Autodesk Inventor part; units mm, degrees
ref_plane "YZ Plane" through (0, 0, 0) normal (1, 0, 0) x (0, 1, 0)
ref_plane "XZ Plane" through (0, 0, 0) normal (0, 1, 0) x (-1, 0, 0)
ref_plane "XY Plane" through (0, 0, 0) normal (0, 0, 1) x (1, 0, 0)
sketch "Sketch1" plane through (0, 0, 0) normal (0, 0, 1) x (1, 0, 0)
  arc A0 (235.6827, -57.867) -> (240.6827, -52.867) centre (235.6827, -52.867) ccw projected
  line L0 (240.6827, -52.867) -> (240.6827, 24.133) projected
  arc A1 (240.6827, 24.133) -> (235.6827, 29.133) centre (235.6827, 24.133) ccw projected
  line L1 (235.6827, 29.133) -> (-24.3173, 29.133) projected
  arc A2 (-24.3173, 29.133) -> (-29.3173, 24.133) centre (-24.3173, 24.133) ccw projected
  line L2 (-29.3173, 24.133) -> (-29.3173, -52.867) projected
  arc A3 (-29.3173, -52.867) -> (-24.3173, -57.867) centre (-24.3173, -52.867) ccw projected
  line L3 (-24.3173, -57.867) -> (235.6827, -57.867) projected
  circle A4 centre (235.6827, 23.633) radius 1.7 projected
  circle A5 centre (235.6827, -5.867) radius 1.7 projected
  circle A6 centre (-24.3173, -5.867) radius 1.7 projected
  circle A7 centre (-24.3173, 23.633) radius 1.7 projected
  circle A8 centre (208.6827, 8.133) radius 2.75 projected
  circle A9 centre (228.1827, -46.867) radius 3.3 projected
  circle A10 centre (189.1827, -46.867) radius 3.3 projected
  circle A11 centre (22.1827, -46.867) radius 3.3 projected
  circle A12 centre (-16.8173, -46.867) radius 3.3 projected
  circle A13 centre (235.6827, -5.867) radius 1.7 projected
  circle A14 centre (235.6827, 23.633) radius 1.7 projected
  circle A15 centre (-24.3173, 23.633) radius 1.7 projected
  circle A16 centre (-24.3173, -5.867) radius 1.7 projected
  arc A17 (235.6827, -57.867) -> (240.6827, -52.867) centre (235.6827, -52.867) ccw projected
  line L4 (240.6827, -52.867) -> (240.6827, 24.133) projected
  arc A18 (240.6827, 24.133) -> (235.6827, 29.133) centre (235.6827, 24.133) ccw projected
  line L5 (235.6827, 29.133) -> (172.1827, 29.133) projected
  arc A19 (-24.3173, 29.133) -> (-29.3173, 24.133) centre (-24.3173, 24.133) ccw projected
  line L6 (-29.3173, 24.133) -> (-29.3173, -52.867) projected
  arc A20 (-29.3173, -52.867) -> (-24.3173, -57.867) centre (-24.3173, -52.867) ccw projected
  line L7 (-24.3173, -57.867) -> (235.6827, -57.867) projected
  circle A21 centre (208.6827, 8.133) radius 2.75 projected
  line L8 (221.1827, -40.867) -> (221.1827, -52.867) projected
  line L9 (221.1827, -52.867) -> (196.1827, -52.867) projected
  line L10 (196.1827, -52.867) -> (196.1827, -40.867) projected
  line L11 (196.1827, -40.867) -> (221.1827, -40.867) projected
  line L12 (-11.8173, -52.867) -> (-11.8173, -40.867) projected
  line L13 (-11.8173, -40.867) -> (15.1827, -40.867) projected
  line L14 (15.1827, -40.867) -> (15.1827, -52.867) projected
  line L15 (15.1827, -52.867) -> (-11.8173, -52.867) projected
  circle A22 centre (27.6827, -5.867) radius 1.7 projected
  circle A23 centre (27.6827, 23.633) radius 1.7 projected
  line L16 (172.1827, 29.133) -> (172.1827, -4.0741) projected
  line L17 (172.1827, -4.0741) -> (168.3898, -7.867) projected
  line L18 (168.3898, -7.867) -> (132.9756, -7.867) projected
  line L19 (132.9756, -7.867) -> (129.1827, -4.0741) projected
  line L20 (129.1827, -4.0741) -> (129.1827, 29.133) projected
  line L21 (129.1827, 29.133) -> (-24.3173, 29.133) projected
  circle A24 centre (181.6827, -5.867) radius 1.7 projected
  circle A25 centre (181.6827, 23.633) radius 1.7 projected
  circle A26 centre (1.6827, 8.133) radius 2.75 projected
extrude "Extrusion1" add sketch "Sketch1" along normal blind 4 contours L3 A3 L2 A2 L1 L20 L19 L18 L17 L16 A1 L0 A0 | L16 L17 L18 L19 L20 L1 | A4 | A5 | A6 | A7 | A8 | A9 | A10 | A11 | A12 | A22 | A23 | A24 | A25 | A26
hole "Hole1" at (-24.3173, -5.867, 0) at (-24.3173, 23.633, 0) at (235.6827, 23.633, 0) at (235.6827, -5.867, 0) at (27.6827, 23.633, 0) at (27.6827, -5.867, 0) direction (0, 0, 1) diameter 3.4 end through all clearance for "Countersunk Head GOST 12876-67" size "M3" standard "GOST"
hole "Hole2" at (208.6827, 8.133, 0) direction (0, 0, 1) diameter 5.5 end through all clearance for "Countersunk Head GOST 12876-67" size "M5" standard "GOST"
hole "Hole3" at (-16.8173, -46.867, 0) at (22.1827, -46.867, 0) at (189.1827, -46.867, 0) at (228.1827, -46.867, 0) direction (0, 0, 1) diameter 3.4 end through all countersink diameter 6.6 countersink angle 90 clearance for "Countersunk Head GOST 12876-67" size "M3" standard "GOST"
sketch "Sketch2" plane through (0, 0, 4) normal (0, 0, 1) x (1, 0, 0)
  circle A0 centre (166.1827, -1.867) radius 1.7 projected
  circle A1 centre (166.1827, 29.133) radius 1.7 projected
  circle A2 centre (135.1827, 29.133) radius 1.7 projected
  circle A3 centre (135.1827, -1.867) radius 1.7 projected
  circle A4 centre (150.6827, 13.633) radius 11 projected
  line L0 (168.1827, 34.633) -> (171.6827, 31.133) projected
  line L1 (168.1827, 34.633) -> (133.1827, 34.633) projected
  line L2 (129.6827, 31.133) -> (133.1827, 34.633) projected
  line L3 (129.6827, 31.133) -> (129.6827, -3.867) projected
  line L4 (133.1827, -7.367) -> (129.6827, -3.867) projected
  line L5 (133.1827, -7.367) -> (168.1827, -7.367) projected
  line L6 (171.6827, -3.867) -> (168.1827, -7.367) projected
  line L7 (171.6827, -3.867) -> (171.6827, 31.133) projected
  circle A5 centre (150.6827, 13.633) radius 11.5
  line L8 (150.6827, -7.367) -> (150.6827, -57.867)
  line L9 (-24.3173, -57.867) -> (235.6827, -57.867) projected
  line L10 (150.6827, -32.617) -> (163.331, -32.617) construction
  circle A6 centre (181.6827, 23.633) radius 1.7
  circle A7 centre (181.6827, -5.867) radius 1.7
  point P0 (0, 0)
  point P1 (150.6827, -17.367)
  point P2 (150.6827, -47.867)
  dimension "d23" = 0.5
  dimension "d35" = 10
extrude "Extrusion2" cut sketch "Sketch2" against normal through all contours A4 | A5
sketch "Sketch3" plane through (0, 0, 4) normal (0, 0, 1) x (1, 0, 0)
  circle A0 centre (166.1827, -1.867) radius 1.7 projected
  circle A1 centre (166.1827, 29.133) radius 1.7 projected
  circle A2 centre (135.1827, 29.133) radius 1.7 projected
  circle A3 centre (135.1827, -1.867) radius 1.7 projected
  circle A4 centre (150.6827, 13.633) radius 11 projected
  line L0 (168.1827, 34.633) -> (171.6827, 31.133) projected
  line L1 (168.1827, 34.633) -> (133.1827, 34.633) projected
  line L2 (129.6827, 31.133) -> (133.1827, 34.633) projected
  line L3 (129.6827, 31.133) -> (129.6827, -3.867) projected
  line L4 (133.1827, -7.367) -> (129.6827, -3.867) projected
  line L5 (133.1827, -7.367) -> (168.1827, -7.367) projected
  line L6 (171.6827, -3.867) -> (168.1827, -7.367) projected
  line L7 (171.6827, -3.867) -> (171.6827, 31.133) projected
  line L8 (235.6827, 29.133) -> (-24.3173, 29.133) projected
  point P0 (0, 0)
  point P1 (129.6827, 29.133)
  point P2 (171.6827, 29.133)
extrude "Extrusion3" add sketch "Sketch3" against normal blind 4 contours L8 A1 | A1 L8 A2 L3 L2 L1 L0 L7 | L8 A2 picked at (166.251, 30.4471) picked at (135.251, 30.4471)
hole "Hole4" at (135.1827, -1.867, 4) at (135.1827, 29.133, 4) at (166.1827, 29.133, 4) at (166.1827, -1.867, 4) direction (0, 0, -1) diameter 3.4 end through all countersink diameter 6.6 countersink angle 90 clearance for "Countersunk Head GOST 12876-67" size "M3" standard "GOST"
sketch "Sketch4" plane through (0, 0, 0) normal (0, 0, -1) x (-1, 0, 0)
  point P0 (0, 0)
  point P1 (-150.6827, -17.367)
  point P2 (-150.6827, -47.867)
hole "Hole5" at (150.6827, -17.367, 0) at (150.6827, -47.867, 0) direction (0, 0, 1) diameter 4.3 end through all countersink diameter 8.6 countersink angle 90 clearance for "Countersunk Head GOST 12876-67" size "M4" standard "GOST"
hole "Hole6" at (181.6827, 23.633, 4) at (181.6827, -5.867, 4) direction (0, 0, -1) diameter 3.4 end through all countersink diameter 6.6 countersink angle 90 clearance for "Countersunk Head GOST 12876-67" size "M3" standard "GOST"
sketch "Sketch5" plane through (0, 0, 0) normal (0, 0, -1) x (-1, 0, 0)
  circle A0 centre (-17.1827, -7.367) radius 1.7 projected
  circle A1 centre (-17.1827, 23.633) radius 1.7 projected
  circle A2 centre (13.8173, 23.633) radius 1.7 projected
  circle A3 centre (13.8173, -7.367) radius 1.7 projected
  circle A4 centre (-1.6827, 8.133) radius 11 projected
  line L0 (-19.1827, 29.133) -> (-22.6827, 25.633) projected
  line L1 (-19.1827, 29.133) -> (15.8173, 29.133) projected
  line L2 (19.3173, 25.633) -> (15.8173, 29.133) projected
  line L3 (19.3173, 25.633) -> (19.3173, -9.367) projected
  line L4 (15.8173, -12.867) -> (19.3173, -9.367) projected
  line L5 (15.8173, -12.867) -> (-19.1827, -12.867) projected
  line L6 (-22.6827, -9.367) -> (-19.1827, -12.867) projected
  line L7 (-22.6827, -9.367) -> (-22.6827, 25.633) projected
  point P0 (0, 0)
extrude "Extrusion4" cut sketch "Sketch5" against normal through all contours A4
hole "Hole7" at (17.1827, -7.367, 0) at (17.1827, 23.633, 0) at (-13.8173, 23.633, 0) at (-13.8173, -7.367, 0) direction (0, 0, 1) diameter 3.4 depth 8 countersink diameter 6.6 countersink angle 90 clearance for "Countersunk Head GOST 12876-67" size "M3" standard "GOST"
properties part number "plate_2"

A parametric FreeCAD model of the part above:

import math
import FreeCAD as App
import Part
import Sketcher

V = App.Vector

doc = App.newDocument("Part")
params = doc.addObject("Spreadsheet::Sheet", "Params")
for row, (alias, value) in enumerate([
    ("sketch1_radius", "5 mm"),
    ("sketch1_width", "260 mm"),
    ("sketch1_width2", "27 mm"),
    ("sketch1_width3", "25 mm"),
    ("sketch1_height", "77 mm"),
    ("pad1_length", "4 mm"),
    ("sketch2_diameter", "3.4 mm"),
    ("hole_diameter", "3.4 mm"),
    ("sketch3_diameter", "5.5 mm"),
    ("hole2_diameter", "5.5 mm"),
    ("sketch4_diameter", "3.4 mm"),
    ("hole3_diameter", "3.4 mm"),
    ("hole3_csink_diameter", "6.6 mm"),
    ("sketch5_diameter", "23 mm"),
    ("sketch6_width", "35 mm"),
    ("sketch6_width2", "42 mm"),
    ("sketch6_height", "2 mm"),
    ("pad2_length", "4 mm"),
    ("sketch7_diameter", "3.4 mm"),
    ("hole4_diameter", "3.4 mm"),
    ("hole4_csink_diameter", "6.6 mm"),
    ("sketch8_diameter", "4.3 mm"),
    ("hole5_diameter", "4.3 mm"),
    ("hole5_csink_diameter", "8.6 mm"),
    ("sketch9_diameter", "3.4 mm"),
    ("hole6_diameter", "3.4 mm"),
    ("hole6_csink_diameter", "6.6 mm"),
    ("sketch10_diameter", "22 mm"),
    ("sketch11_diameter", "3.4 mm"),
    ("hole7_diameter", "3.4 mm"),
    ("hole7_depth", "8 mm"),
    ("hole7_csink_diameter", "6.6 mm"),
], start=1):
    params.set(f"A{row}", alias)
    params.set(f"B{row}", "=" + value)
    params.setAlias(f"B{row}", alias)

body = doc.addObject("PartDesign::Body", "Body")

# Sketch on XY plane
sketch1 = body.newObject("Sketcher::SketchObject", "Sketch")
sketch1.AttachmentSupport = (doc.getObject("XY_Plane"), [""])
sketch1.MapMode = "FlatFace"
sketch1.addGeometry(Part.LineSegment(V(-24, -58, 0), V(236, -58, 0)), False)
sketch1.addGeometry(Part.ArcOfCircle(Part.Circle(V(236, -53, 0), V(0, 0, 1), 5), math.radians(-90), math.radians(0)), False)
sketch1.addGeometry(Part.LineSegment(V(241, -53, 0), V(241, 24, 0)), False)
sketch1.addGeometry(Part.ArcOfCircle(Part.Circle(V(236, 24, 0), V(0, 0, 1), 5), math.radians(0), math.radians(90)), False)
sketch1.addGeometry(Part.LineSegment(V(236, 29, 0), V(-24, 29, 0)), False)
sketch1.addGeometry(Part.ArcOfCircle(Part.Circle(V(-24, 24, 0), V(0, 0, 1), 5), math.radians(90), math.radians(180)), False)
sketch1.addGeometry(Part.LineSegment(V(-29, 24, 0), V(-29, -53, 0)), False)
sketch1.addGeometry(Part.ArcOfCircle(Part.Circle(V(-24, -53, 0), V(0, 0, 1), 5), math.radians(180), math.radians(270)), False)
sketch1.addGeometry(Part.LineSegment(V(15, -53, 0), V(-12, -53, 0)), False)
sketch1.addGeometry(Part.LineSegment(V(-12, -53, 0), V(-12, -41, 0)), False)
sketch1.addGeometry(Part.LineSegment(V(-12, -41, 0), V(15, -41, 0)), False)
sketch1.addGeometry(Part.LineSegment(V(15, -41, 0), V(15, -53, 0)), False)
sketch1.addGeometry(Part.LineSegment(V(196, -41, 0), V(221, -41, 0)), False)
sketch1.addGeometry(Part.LineSegment(V(221, -41, 0), V(221, -53, 0)), False)
sketch1.addGeometry(Part.LineSegment(V(221, -53, 0), V(196, -53, 0)), False)
sketch1.addGeometry(Part.LineSegment(V(196, -53, 0), V(196, -41, 0)), False)
sketch1.addConstraint(Sketcher.Constraint("Tangent", 0, 2, 1, 1))
sketch1.addConstraint(Sketcher.Constraint("Tangent", 1, 2, 2, 1))
sketch1.addConstraint(Sketcher.Constraint("Tangent", 2, 2, 3, 1))
sketch1.addConstraint(Sketcher.Constraint("Tangent", 3, 2, 4, 1))
sketch1.addConstraint(Sketcher.Constraint("Tangent", 4, 2, 5, 1))
sketch1.addConstraint(Sketcher.Constraint("Tangent", 5, 2, 6, 1))
sketch1.addConstraint(Sketcher.Constraint("Tangent", 6, 2, 7, 1))
sketch1.addConstraint(Sketcher.Constraint("Tangent", 7, 2, 0, 1))
sketch1.addConstraint(Sketcher.Constraint("Coincident", 8, 2, 9, 1))
sketch1.addConstraint(Sketcher.Constraint("Coincident", 9, 2, 10, 1))
sketch1.addConstraint(Sketcher.Constraint("Coincident", 10, 2, 11, 1))
sketch1.addConstraint(Sketcher.Constraint("Coincident", 11, 2, 8, 1))
sketch1.addConstraint(Sketcher.Constraint("Coincident", 12, 2, 13, 1))
sketch1.addConstraint(Sketcher.Constraint("Coincident", 13, 2, 14, 1))
sketch1.addConstraint(Sketcher.Constraint("Coincident", 14, 2, 15, 1))
sketch1.addConstraint(Sketcher.Constraint("Coincident", 15, 2, 12, 1))
sketch1.addConstraint(Sketcher.Constraint("Horizontal", 0))
sketch1.addConstraint(Sketcher.Constraint("Vertical", 2))
sketch1.addConstraint(Sketcher.Constraint("Horizontal", 4))
sketch1.addConstraint(Sketcher.Constraint("Vertical", 6))
sketch1.addConstraint(Sketcher.Constraint("Horizontal", 8))
sketch1.addConstraint(Sketcher.Constraint("Vertical", 9))
sketch1.addConstraint(Sketcher.Constraint("Horizontal", 10))
sketch1.addConstraint(Sketcher.Constraint("Vertical", 11))
sketch1.addConstraint(Sketcher.Constraint("Horizontal", 12))
sketch1.addConstraint(Sketcher.Constraint("Vertical", 13))
sketch1.addConstraint(Sketcher.Constraint("Horizontal", 14))
sketch1.addConstraint(Sketcher.Constraint("Vertical", 15))
sketch1.addConstraint(Sketcher.Constraint("Equal", 1, 3))
sketch1.addConstraint(Sketcher.Constraint("Equal", 3, 5))
sketch1.addConstraint(Sketcher.Constraint("Equal", 5, 7))
sketch1.addConstraint(Sketcher.Constraint("Horizontal", 6, 2, 8, 2))
sketch1.addConstraint(Sketcher.Constraint("Horizontal", 10, 2, 12, 2))
sketch1.addConstraint(Sketcher.Constraint("Horizontal", 11, 2, 13, 2))
sketch1.addConstraint(Sketcher.Constraint("Radius", 1, 5.0))
sketch1.addConstraint(Sketcher.Constraint("DistanceX", 0, 1, 0, 2, 260.0))
sketch1.addConstraint(Sketcher.Constraint("DistanceX", 8, 2, 8, 1, 27.0))
sketch1.addConstraint(Sketcher.Constraint("DistanceX", 12, 1, 12, 2, 25.0))
sketch1.addConstraint(Sketcher.Constraint("DistanceY", 2, 1, 2, 2, 77.0))
sketch1.addConstraint(Sketcher.Constraint("DistanceY", 9, 1, 9, 2, 12.0))
sketch1.addConstraint(Sketcher.Constraint("DistanceX", 7, 3, 8, 2, 12.5))
sketch1.addConstraint(Sketcher.Constraint("DistanceX", 12, 2, 1, 3, 14.5))
sketch1.addConstraint(Sketcher.Constraint("DistanceY", 1, 3, -1, 1, 52.867))
sketch1.addConstraint(Sketcher.Constraint("DistanceX", -1, 1, 1, 3, 235.6827))
sketch1.setExpression("Constraints[34]", "Params.sketch1_radius")
sketch1.setExpression("Constraints[35]", "Params.sketch1_width")
sketch1.setExpression("Constraints[36]", "Params.sketch1_width2")
sketch1.setExpression("Constraints[37]", "Params.sketch1_width3")
sketch1.setExpression("Constraints[38]", "Params.sketch1_height")
pad1 = body.newObject("PartDesign::Pad", "Pad")
pad1.Profile = sketch1
pad1.setExpression("Length", "Params.pad1_length")

# Sketch on XY plane
sketch2 = body.newObject("Sketcher::SketchObject", "Sketch001")
sketch2.AttachmentSupport = (doc.getObject("XY_Plane"), [""])
sketch2.MapMode = "FlatFace"
sketch2.addGeometry(Part.Circle(V(-24.3, -5.9, 0), V(0, 0, 1), 1.7), False)
sketch2.addGeometry(Part.Circle(V(-24.3, 23.6, 0), V(0, 0, 1), 1.7), False)
sketch2.addGeometry(Part.Circle(V(235.7, 23.6, 0), V(0, 0, 1), 1.7), False)
sketch2.addGeometry(Part.Circle(V(235.7, -5.9, 0), V(0, 0, 1), 1.7), False)
sketch2.addGeometry(Part.Circle(V(27.7, 23.6, 0), V(0, 0, 1), 1.7), False)
sketch2.addGeometry(Part.Circle(V(27.7, -5.9, 0), V(0, 0, 1), 1.7), False)
sketch2.addConstraint(Sketcher.Constraint("Equal", 0, 1))
sketch2.addConstraint(Sketcher.Constraint("Equal", 1, 2))
sketch2.addConstraint(Sketcher.Constraint("Equal", 2, 3))
sketch2.addConstraint(Sketcher.Constraint("Equal", 3, 4))
sketch2.addConstraint(Sketcher.Constraint("Equal", 4, 5))
sketch2.addConstraint(Sketcher.Constraint("Horizontal", 1, 3, 2, 3))
sketch2.addConstraint(Sketcher.Constraint("Horizontal", 0, 3, 3, 3))
sketch2.addConstraint(Sketcher.Constraint("Horizontal", 2, 3, 4, 3))
sketch2.addConstraint(Sketcher.Constraint("Horizontal", 3, 3, 5, 3))
sketch2.addConstraint(Sketcher.Constraint("Vertical", 0, 3, 1, 3))
sketch2.addConstraint(Sketcher.Constraint("Vertical", 2, 3, 3, 3))
sketch2.addConstraint(Sketcher.Constraint("Vertical", 4, 3, 5, 3))
sketch2.addConstraint(Sketcher.Constraint("Diameter", 0, 3.4))
sketch2.addConstraint(Sketcher.Constraint("DistanceX", 1, 3, 2, 3, 260.0))
sketch2.addConstraint(Sketcher.Constraint("DistanceX", 1, 3, 4, 3, 52.0))
sketch2.addConstraint(Sketcher.Constraint("DistanceY", 0, 3, 1, 3, 29.5))
sketch2.addConstraint(Sketcher.Constraint("DistanceY", 0, 3, -1, 1, 5.867))
sketch2.addConstraint(Sketcher.Constraint("DistanceX", 0, 3, -1, 1, 24.3173))
sketch2.setExpression("Constraints[12]", "Params.sketch2_diameter")
doc.recompute()
hole = body.newObject("PartDesign::Hole", "Hole")
hole.Profile = sketch2
hole.ThreadType = "None"
hole.setExpression("Diameter", "Params.hole_diameter")
hole.DepthType = "ThroughAll"
hole.Reversed = True

# Sketch on XY plane
sketch3 = body.newObject("Sketcher::SketchObject", "Sketch002")
sketch3.AttachmentSupport = (doc.getObject("XY_Plane"), [""])
sketch3.MapMode = "FlatFace"
sketch3.addGeometry(Part.Circle(V(208.7, 8.1, 0), V(0, 0, 1), 2.8), False)
sketch3.addConstraint(Sketcher.Constraint("Diameter", 0, 5.5))
sketch3.addConstraint(Sketcher.Constraint("DistanceY", -1, 1, 0, 3, 8.133))
sketch3.addConstraint(Sketcher.Constraint("DistanceX", -1, 1, 0, 3, 208.6827))
sketch3.setExpression("Constraints[0]", "Params.sketch3_diameter")
doc.recompute()
hole2 = body.newObject("PartDesign::Hole", "Hole001")
hole2.Profile = sketch3
hole2.ThreadType = "None"
hole2.setExpression("Diameter", "Params.hole2_diameter")
hole2.DepthType = "ThroughAll"
hole2.Reversed = True

# Sketch on XY plane
sketch4 = body.newObject("Sketcher::SketchObject", "Sketch003")
sketch4.AttachmentSupport = (doc.getObject("XY_Plane"), [""])
sketch4.MapMode = "FlatFace"
sketch4.addGeometry(Part.Circle(V(-16.8, -46.9, 0), V(0, 0, 1), 1.7), False)
sketch4.addGeometry(Part.Circle(V(22.2, -46.9, 0), V(0, 0, 1), 1.7), False)
sketch4.addGeometry(Part.Circle(V(189.2, -46.9, 0), V(0, 0, 1), 1.7), False)
sketch4.addGeometry(Part.Circle(V(228.2, -46.9, 0), V(0, 0, 1), 1.7), False)
sketch4.addConstraint(Sketcher.Constraint("Equal", 0, 1))
sketch4.addConstraint(Sketcher.Constraint("Equal", 1, 2))
sketch4.addConstraint(Sketcher.Constraint("Equal", 2, 3))
sketch4.addConstraint(Sketcher.Constraint("Horizontal", 0, 3, 1, 3))
sketch4.addConstraint(Sketcher.Constraint("Horizontal", 1, 3, 2, 3))
sketch4.addConstraint(Sketcher.Constraint("Horizontal", 2, 3, 3, 3))
sketch4.addConstraint(Sketcher.Constraint("Diameter", 0, 3.4))
sketch4.addConstraint(Sketcher.Constraint("DistanceX", 0, 3, 1, 3, 39.0))
sketch4.addConstraint(Sketcher.Constraint("DistanceX", 1, 3, 2, 3, 167.0))
sketch4.addConstraint(Sketcher.Constraint("DistanceX", 2, 3, 3, 3, 39.0))
sketch4.addConstraint(Sketcher.Constraint("DistanceY", 0, 3, -1, 1, 46.867))
sketch4.addConstraint(Sketcher.Constraint("DistanceX", 0, 3, -1, 1, 16.8173))
sketch4.setExpression("Constraints[6]", "Params.sketch4_diameter")
doc.recompute()
hole3 = body.newObject("PartDesign::Hole", "Hole002")
hole3.Profile = sketch4
hole3.ThreadType = "None"
hole3.setExpression("Diameter", "Params.hole3_diameter")
hole3.DepthType = "ThroughAll"
hole3.HoleCutType = "Countersink"
hole3.setExpression("HoleCutDiameter", "Params.hole3_csink_diameter")
hole3.HoleCutCountersinkAngle = 90
hole3.Reversed = True

# Sketch on XY plane
sketch5 = body.newObject("Sketcher::SketchObject", "Sketch004")
sketch5.AttachmentSupport = (doc.getObject("XY_Plane"), [""])
sketch5.MapMode = "FlatFace"
sketch5.AttachmentOffset = App.Placement(V(0, 0, 4), App.Rotation())
sketch5.addGeometry(Part.Circle(V(151, 14, 0), V(0, 0, 1), 12), False)
sketch5.addConstraint(Sketcher.Constraint("Diameter", 0, 23.0))
sketch5.addConstraint(Sketcher.Constraint("DistanceY", -1, 1, 0, 3, 13.633))
sketch5.addConstraint(Sketcher.Constraint("DistanceX", -1, 1, 0, 3, 150.6827))
sketch5.setExpression("Constraints[0]", "Params.sketch5_diameter")
pocket1 = body.newObject("PartDesign::Pocket", "Pocket")
pocket1.Profile = sketch5
pocket1.Type = "ThroughAll"

# Sketch on XY plane
sketch6 = body.newObject("Sketcher::SketchObject", "Sketch005")
sketch6.AttachmentSupport = (doc.getObject("XY_Plane"), [""])
sketch6.MapMode = "FlatFace"
sketch6.AttachmentOffset = App.Placement(V(0, 0, 4), App.Rotation())
sketch6.addGeometry(Part.LineSegment(V(171.7, 29.1, 0), V(171.7, 31.1, 0)), False)
sketch6.addGeometry(Part.LineSegment(V(171.7, 31.1, 0), V(168.2, 34.6, 0)), False)
sketch6.addGeometry(Part.LineSegment(V(168.2, 34.6, 0), V(133.2, 34.6, 0)), False)
sketch6.addGeometry(Part.LineSegment(V(133.2, 34.6, 0), V(129.7, 31.1, 0)), False)
sketch6.addGeometry(Part.LineSegment(V(129.7, 31.1, 0), V(129.7, 29.1, 0)), False)
sketch6.addGeometry(Part.LineSegment(V(129.7, 29.1, 0), V(171.7, 29.1, 0)), False)
sketch6.addConstraint(Sketcher.Constraint("Coincident", 0, 2, 1, 1))
sketch6.addConstraint(Sketcher.Constraint("Coincident", 1, 2, 2, 1))
sketch6.addConstraint(Sketcher.Constraint("Coincident", 2, 2, 3, 1))
sketch6.addConstraint(Sketcher.Constraint("Coincident", 3, 2, 4, 1))
sketch6.addConstraint(Sketcher.Constraint("Coincident", 4, 2, 5, 1))
sketch6.addConstraint(Sketcher.Constraint("Coincident", 5, 2, 0, 1))
sketch6.addConstraint(Sketcher.Constraint("Vertical", 0))
sketch6.addConstraint(Sketcher.Constraint("Horizontal", 2))
sketch6.addConstraint(Sketcher.Constraint("Vertical", 4))
sketch6.addConstraint(Sketcher.Constraint("Horizontal", 5))
sketch6.addConstraint(Sketcher.Constraint("Perpendicular", 1, 3))
sketch6.addConstraint(Sketcher.Constraint("Horizontal", 0, 2, 3, 2))
sketch6.addConstraint(Sketcher.Constraint("Equal", 1, 3))
sketch6.addConstraint(Sketcher.Constraint("DistanceX", 2, 2, 2, 1, 35.0))
sketch6.addConstraint(Sketcher.Constraint("DistanceX", 5, 1, 5, 2, 42.0))
sketch6.addConstraint(Sketcher.Constraint("DistanceY", 0, 1, 0, 2, 2.0))
sketch6.addConstraint(Sketcher.Constraint("DistanceY", -1, 1, 0, 2, 31.133))
sketch6.addConstraint(Sketcher.Constraint("DistanceX", -1, 1, 0, 2, 171.6827))
sketch6.setExpression("Constraints[13]", "Params.sketch6_width")
sketch6.setExpression("Constraints[14]", "Params.sketch6_width2")
sketch6.setExpression("Constraints[15]", "Params.sketch6_height")
pad2 = body.newObject("PartDesign::Pad", "Pad001")
pad2.Profile = sketch6
pad2.setExpression("Length", "Params.pad2_length")
pad2.Reversed = True

# Sketch on XY plane
sketch7 = body.newObject("Sketcher::SketchObject", "Sketch006")
sketch7.AttachmentSupport = (doc.getObject("XY_Plane"), [""])
sketch7.MapMode = "FlatFace"
sketch7.AttachmentOffset = App.Placement(V(0, 0, 4), App.Rotation())
sketch7.addGeometry(Part.Circle(V(135.2, -1.9, 0), V(0, 0, 1), 1.7), False)
sketch7.addGeometry(Part.Circle(V(135.2, 29.1, 0), V(0, 0, 1), 1.7), False)
sketch7.addGeometry(Part.Circle(V(166.2, 29.1, 0), V(0, 0, 1), 1.7), False)
sketch7.addGeometry(Part.Circle(V(166.2, -1.9, 0), V(0, 0, 1), 1.7), False)
sketch7.addConstraint(Sketcher.Constraint("Equal", 0, 1))
sketch7.addConstraint(Sketcher.Constraint("Equal", 1, 2))
sketch7.addConstraint(Sketcher.Constraint("Equal", 2, 3))
sketch7.addConstraint(Sketcher.Constraint("Horizontal", 1, 3, 2, 3))
sketch7.addConstraint(Sketcher.Constraint("Horizontal", 0, 3, 3, 3))
sketch7.addConstraint(Sketcher.Constraint("Vertical", 0, 3, 1, 3))
sketch7.addConstraint(Sketcher.Constraint("Vertical", 2, 3, 3, 3))
sketch7.addConstraint(Sketcher.Constraint("Diameter", 0, 3.4))
sketch7.addConstraint(Sketcher.Constraint("DistanceY", 0, 3, 1, 3, 31.0))
sketch7.addConstraint(Sketcher.Constraint("DistanceX", 1, 3, 2, 3, 31.0))
sketch7.addConstraint(Sketcher.Constraint("DistanceY", 0, 3, -1, 1, 1.867))
sketch7.addConstraint(Sketcher.Constraint("DistanceX", -1, 1, 0, 3, 135.1827))
sketch7.setExpression("Constraints[7]", "Params.sketch7_diameter")
doc.recompute()
hole4 = body.newObject("PartDesign::Hole", "Hole003")
hole4.Profile = sketch7
hole4.ThreadType = "None"
hole4.setExpression("Diameter", "Params.hole4_diameter")
hole4.DepthType = "ThroughAll"
hole4.HoleCutType = "Countersink"
hole4.setExpression("HoleCutDiameter", "Params.hole4_csink_diameter")
hole4.HoleCutCountersinkAngle = 90

# Sketch on XY plane
sketch8 = body.newObject("Sketcher::SketchObject", "Sketch007")
sketch8.AttachmentSupport = (doc.getObject("XY_Plane"), [""])
sketch8.MapMode = "FlatFace"
sketch8.addGeometry(Part.Circle(V(150.7, -17.4, 0), V(0, 0, 1), 2.1), False)
sketch8.addGeometry(Part.Circle(V(150.7, -47.9, 0), V(0, 0, 1), 2.1), False)
sketch8.addConstraint(Sketcher.Constraint("Equal", 0, 1))
sketch8.addConstraint(Sketcher.Constraint("Vertical", 0, 3, 1, 3))
sketch8.addConstraint(Sketcher.Constraint("Diameter", 0, 4.3))
sketch8.addConstraint(Sketcher.Constraint("DistanceY", 1, 3, 0, 3, 30.5))
sketch8.addConstraint(Sketcher.Constraint("DistanceY", 0, 3, -1, 1, 17.367))
sketch8.addConstraint(Sketcher.Constraint("DistanceX", -1, 1, 0, 3, 150.6827))
sketch8.setExpression("Constraints[2]", "Params.sketch8_diameter")
doc.recompute()
hole5 = body.newObject("PartDesign::Hole", "Hole004")
hole5.Profile = sketch8
hole5.ThreadType = "None"
hole5.setExpression("Diameter", "Params.hole5_diameter")
hole5.DepthType = "ThroughAll"
hole5.HoleCutType = "Countersink"
hole5.setExpression("HoleCutDiameter", "Params.hole5_csink_diameter")
hole5.HoleCutCountersinkAngle = 90
hole5.Reversed = True

# Sketch on XY plane
sketch9 = body.newObject("Sketcher::SketchObject", "Sketch008")
sketch9.AttachmentSupport = (doc.getObject("XY_Plane"), [""])
sketch9.MapMode = "FlatFace"
sketch9.AttachmentOffset = App.Placement(V(0, 0, 4), App.Rotation())
sketch9.addGeometry(Part.Circle(V(181.7, 23.6, 0), V(0, 0, 1), 1.7), False)
sketch9.addGeometry(Part.Circle(V(181.7, -5.9, 0), V(0, 0, 1), 1.7), False)
sketch9.addConstraint(Sketcher.Constraint("Equal", 0, 1))
sketch9.addConstraint(Sketcher.Constraint("Vertical", 0, 3, 1, 3))
sketch9.addConstraint(Sketcher.Constraint("Diameter", 0, 3.4))
sketch9.addConstraint(Sketcher.Constraint("DistanceY", 1, 3, 0, 3, 29.5))
sketch9.addConstraint(Sketcher.Constraint("DistanceY", -1, 1, 0, 3, 23.633))
sketch9.addConstraint(Sketcher.Constraint("DistanceX", -1, 1, 0, 3, 181.6827))
sketch9.setExpression("Constraints[2]", "Params.sketch9_diameter")
doc.recompute()
hole6 = body.newObject("PartDesign::Hole", "Hole005")
hole6.Profile = sketch9
hole6.ThreadType = "None"
hole6.setExpression("Diameter", "Params.hole6_diameter")
hole6.DepthType = "ThroughAll"
hole6.HoleCutType = "Countersink"
hole6.setExpression("HoleCutDiameter", "Params.hole6_csink_diameter")
hole6.HoleCutCountersinkAngle = 90

# Sketch on XY plane
sketch10 = body.newObject("Sketcher::SketchObject", "Sketch009")
sketch10.AttachmentSupport = (doc.getObject("XY_Plane"), [""])
sketch10.MapMode = "FlatFace"
sketch10.addGeometry(Part.Circle(V(2, 8, 0), V(0, 0, 1), 11), False)
sketch10.addConstraint(Sketcher.Constraint("Diameter", 0, 22.0))
sketch10.addConstraint(Sketcher.Constraint("DistanceY", -1, 1, 0, 3, 8.133))
sketch10.addConstraint(Sketcher.Constraint("DistanceX", -1, 1, 0, 3, 1.6827))
sketch10.setExpression("Constraints[0]", "Params.sketch10_diameter")
pocket2 = body.newObject("PartDesign::Pocket", "Pocket001")
pocket2.Profile = sketch10
pocket2.Type = "ThroughAll"
pocket2.Reversed = True

# Sketch on XY plane
sketch11 = body.newObject("Sketcher::SketchObject", "Sketch010")
sketch11.AttachmentSupport = (doc.getObject("XY_Plane"), [""])
sketch11.MapMode = "FlatFace"
sketch11.addGeometry(Part.Circle(V(17.2, -7.4, 0), V(0, 0, 1), 1.7), False)
sketch11.addGeometry(Part.Circle(V(17.2, 23.6, 0), V(0, 0, 1), 1.7), False)
sketch11.addGeometry(Part.Circle(V(-13.8, 23.6, 0), V(0, 0, 1), 1.7), False)
sketch11.addGeometry(Part.Circle(V(-13.8, -7.4, 0), V(0, 0, 1), 1.7), False)
sketch11.addConstraint(Sketcher.Constraint("Equal", 0, 1))
sketch11.addConstraint(Sketcher.Constraint("Equal", 1, 2))
sketch11.addConstraint(Sketcher.Constraint("Equal", 2, 3))
sketch11.addConstraint(Sketcher.Constraint("Horizontal", 1, 3, 2, 3))
sketch11.addConstraint(Sketcher.Constraint("Horizontal", 0, 3, 3, 3))
sketch11.addConstraint(Sketcher.Constraint("Vertical", 0, 3, 1, 3))
sketch11.addConstraint(Sketcher.Constraint("Vertical", 2, 3, 3, 3))
sketch11.addConstraint(Sketcher.Constraint("Diameter", 0, 3.4))
sketch11.addConstraint(Sketcher.Constraint("DistanceY", 0, 3, 1, 3, 31.0))
sketch11.addConstraint(Sketcher.Constraint("DistanceX", 2, 3, 1, 3, 31.0))
sketch11.addConstraint(Sketcher.Constraint("DistanceY", 0, 3, -1, 1, 7.367))
sketch11.addConstraint(Sketcher.Constraint("DistanceX", -1, 1, 0, 3, 17.1827))
sketch11.setExpression("Constraints[7]", "Params.sketch11_diameter")
doc.recompute()
hole7 = body.newObject("PartDesign::Hole", "Hole006")
hole7.Profile = sketch11
hole7.ThreadType = "None"
hole7.setExpression("Diameter", "Params.hole7_diameter")
hole7.DepthType = "Dimension"
hole7.setExpression("Depth", "Params.hole7_depth")
hole7.DrillPoint = "Flat"
hole7.HoleCutType = "Countersink"
hole7.setExpression("HoleCutDiameter", "Params.hole7_csink_diameter")
hole7.HoleCutCountersinkAngle = 90
hole7.Reversed = True

doc.recompute()
